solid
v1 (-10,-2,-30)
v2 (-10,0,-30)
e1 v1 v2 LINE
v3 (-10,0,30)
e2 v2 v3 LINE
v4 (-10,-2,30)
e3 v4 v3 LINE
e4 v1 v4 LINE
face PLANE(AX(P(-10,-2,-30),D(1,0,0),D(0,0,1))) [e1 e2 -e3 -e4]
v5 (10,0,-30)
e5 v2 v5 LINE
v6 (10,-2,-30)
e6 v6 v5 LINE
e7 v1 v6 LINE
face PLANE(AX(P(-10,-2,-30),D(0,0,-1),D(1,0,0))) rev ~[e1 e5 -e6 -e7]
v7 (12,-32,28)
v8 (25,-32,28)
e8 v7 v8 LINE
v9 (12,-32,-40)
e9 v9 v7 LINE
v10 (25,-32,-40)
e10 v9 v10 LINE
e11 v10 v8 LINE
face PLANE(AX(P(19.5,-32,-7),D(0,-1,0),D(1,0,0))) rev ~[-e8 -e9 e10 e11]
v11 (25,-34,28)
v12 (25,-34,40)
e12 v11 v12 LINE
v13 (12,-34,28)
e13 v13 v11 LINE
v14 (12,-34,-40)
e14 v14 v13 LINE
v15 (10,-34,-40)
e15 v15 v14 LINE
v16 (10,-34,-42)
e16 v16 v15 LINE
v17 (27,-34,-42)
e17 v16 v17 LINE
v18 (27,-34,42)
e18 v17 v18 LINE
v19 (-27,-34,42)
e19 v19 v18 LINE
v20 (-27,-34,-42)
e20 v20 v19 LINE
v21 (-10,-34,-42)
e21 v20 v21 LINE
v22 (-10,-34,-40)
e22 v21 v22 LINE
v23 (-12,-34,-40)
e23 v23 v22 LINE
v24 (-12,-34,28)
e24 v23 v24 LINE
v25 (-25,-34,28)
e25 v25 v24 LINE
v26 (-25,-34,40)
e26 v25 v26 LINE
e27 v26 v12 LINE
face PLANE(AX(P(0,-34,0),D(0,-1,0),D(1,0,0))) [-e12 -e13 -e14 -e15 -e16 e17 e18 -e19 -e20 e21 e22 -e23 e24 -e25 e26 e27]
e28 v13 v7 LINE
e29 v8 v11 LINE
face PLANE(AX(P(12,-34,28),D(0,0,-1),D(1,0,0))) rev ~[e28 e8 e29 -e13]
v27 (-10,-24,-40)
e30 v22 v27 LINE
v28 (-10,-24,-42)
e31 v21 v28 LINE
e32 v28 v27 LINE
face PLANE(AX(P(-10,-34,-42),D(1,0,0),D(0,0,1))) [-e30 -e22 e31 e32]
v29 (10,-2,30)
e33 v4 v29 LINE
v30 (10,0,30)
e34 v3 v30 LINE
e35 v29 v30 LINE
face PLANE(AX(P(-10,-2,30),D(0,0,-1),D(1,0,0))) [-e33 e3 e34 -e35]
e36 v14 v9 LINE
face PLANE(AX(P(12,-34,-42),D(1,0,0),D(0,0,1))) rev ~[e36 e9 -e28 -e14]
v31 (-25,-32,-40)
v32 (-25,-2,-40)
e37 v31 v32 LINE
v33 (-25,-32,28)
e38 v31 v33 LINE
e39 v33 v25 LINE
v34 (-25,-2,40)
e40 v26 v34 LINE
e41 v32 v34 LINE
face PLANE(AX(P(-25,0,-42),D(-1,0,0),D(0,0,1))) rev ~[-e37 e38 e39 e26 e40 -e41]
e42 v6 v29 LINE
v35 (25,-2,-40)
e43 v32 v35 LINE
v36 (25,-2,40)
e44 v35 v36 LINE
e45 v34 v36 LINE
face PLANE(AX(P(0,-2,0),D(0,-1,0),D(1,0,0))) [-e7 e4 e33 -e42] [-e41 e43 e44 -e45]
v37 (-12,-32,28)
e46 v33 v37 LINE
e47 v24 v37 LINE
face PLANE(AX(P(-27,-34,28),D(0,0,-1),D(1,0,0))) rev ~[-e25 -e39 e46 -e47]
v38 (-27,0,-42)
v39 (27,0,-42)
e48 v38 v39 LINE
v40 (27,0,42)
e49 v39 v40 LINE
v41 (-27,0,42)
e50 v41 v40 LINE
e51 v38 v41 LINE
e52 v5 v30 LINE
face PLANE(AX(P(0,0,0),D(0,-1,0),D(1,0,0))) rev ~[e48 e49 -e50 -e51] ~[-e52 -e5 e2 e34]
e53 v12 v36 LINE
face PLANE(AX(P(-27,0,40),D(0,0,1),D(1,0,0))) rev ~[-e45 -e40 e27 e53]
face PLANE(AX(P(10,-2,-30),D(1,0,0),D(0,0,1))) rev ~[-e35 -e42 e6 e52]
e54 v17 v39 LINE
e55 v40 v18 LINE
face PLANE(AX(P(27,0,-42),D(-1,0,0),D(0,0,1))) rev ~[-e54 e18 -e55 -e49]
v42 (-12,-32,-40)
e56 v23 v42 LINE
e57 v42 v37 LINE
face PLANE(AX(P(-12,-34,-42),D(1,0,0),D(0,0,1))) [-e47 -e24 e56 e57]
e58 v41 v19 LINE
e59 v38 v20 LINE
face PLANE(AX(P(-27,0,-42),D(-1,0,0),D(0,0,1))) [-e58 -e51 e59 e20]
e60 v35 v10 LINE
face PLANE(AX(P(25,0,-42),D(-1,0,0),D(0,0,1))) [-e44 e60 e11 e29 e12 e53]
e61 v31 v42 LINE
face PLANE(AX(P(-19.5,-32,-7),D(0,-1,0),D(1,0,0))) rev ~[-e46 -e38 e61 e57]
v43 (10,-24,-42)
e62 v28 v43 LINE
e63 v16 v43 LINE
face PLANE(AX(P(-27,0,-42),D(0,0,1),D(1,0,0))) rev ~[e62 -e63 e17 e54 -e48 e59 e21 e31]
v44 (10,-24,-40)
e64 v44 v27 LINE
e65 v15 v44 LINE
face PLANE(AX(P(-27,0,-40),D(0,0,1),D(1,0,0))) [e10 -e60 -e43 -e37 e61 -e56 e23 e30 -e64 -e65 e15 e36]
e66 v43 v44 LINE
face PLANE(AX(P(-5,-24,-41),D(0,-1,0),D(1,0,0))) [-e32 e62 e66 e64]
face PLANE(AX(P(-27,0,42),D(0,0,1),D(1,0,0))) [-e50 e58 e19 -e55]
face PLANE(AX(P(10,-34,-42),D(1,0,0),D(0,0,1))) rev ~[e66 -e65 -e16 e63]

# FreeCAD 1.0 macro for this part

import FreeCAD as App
import Part
import Sketcher
from FreeCAD import Vector


def faces_at(feature, points):
    """Names of the faces that lie closest to the given points."""
    faces = feature.Shape.Faces
    near = lambda p: min(range(len(faces)), key=lambda i: faces[i].distToShape(Part.Vertex(*p))[0])
    return sorted({f"Face{near(p) + 1}" for p in points})


def add_polygon(sketch, points):
    """Adds a closed chain of lines whose ends are joined by coincident constraints."""
    first, n = sketch.GeometryCount, len(points)
    for a, b in zip(points, points[1:] + points[:1]):
        sketch.addGeometry(Part.LineSegment(App.Vector(*a, 0), App.Vector(*b, 0)), False)
    for i in range(n):
        sketch.addConstraint(Sketcher.Constraint("Coincident", first + i, 2, first + (i + 1) % n, 1))

doc = App.newDocument("Part")
body = doc.addObject("PartDesign::Body", "Body")

sketch1 = body.newObject("Sketcher::SketchObject", "Sketch")
sketch1.AttachmentSupport = (doc.getObject("XZ_Plane"), [""])
sketch1.MapMode = "FlatFace"
add_polygon(sketch1, [(-27, 42), (-27, -42), (27, -42), (27, 42)])
sketch1.addConstraint(Sketcher.Constraint("Vertical", 0))
sketch1.addConstraint(Sketcher.Constraint("Horizontal", 1))
sketch1.addConstraint(Sketcher.Constraint("Vertical", 2))
sketch1.addConstraint(Sketcher.Constraint("Horizontal", 3))
sketch1.addConstraint(Sketcher.Constraint("Symmetric", 0, 2, 2, 2, -1, 1))
sketch1.addConstraint(Sketcher.Constraint("DistanceX", 1, 1, 1, 2, 54.0))
sketch1.addConstraint(Sketcher.Constraint("DistanceY", 0, 2, 0, 1, 84.0))
pad1 = body.newObject("PartDesign::Pad", "Pad")
pad1.Profile = sketch1
pad1.Length = 34
doc.recompute()

thickness = body.newObject("PartDesign::Thickness", "Thickness")
thickness.Base = (pad1, faces_at(pad1, [(0, -34, 0)]))
thickness.Value = 2
thickness.Reversed = True
thickness.Join = "Arc"

sketch2 = body.newObject("Sketcher::SketchObject", "Sketch001")
sketch2.AttachmentSupport = (doc.getObject("XZ_Plane"), [""])
sketch2.MapMode = "FlatFace"
sketch2.AttachmentOffset = App.Placement(Vector(0, 0, 2), App.Rotation())
add_polygon(sketch2, [(-10, 30), (-10, -30), (10, -30), (10, 30)])
sketch2.addConstraint(Sketcher.Constraint("Vertical", 0))
sketch2.addConstraint(Sketcher.Constraint("Horizontal", 1))
sketch2.addConstraint(Sketcher.Constraint("Vertical", 2))
sketch2.addConstraint(Sketcher.Constraint("Horizontal", 3))
sketch2.addConstraint(Sketcher.Constraint("Symmetric", 0, 2, 2, 2, -1, 1))
sketch2.addConstraint(Sketcher.Constraint("DistanceX", 1, 1, 1, 2, 20.0))
sketch2.addConstraint(Sketcher.Constraint("DistanceY", 0, 2, 0, 1, 60.0))
pocket1 = body.newObject("PartDesign::Pocket", "Pocket")
pocket1.Profile = sketch2
pocket1.Length = 25

sketch3 = body.newObject("Sketcher::SketchObject", "Sketch002")
sketch3.AttachmentSupport = (doc.getObject("XZ_Plane"), [""])
sketch3.MapMode = "FlatFace"
sketch3.AttachmentOffset = App.Placement(Vector(0, 0, 34), App.Rotation())
add_polygon(sketch3, [(-27, 28), (-27, -42), (-12, -42), (-12, 28)])
sketch3.addConstraint(Sketcher.Constraint("Vertical", 0))
sketch3.addConstraint(Sketcher.Constraint("Horizontal", 1))
sketch3.addConstraint(Sketcher.Constraint("Vertical", 2))
sketch3.addConstraint(Sketcher.Constraint("Horizontal", 3))
sketch3.addConstraint(Sketcher.Constraint("DistanceX", 1, 1, 1, 2, 15.0))
sketch3.addConstraint(Sketcher.Constraint("DistanceY", 0, 2, 0, 1, 70.0))
sketch3.addConstraint(Sketcher.Constraint("DistanceX", 0, 2, -1, 1, 27.0))
sketch3.addConstraint(Sketcher.Constraint("DistanceY", 0, 2, -1, 1, 42.0))
pad2 = body.newObject("PartDesign::Pad", "Pad001")
pad2.Profile = sketch3
pad2.Length = 2
pad2.Reversed = True

sketch4 = body.newObject("Sketcher::SketchObject", "Sketch003")
sketch4.AttachmentSupport = (doc.getObject("XZ_Plane"), [""])
sketch4.MapMode = "FlatFace"
sketch4.AttachmentOffset = App.Placement(Vector(0, 0, 34), App.Rotation())
add_polygon(sketch4, [(12, 28), (12, -42), (27, -42), (27, 28)])
sketch4.addConstraint(Sketcher.Constraint("Vertical", 0))
sketch4.addConstraint(Sketcher.Constraint("Horizontal", 1))
sketch4.addConstraint(Sketcher.Constraint("Vertical", 2))
sketch4.addConstraint(Sketcher.Constraint("Horizontal", 3))
sketch4.addConstraint(Sketcher.Constraint("DistanceX", 1, 1, 1, 2, 15.0))
sketch4.addConstraint(Sketcher.Constraint("DistanceY", 0, 2, 0, 1, 70.0))
sketch4.addConstraint(Sketcher.Constraint("DistanceX", -1, 1, 0, 2, 12.0))
sketch4.addConstraint(Sketcher.Constraint("DistanceY", 0, 2, -1, 1, 42.0))
pad3 = body.newObject("PartDesign::Pad", "Pad002")
pad3.Profile = sketch4
pad3.Length = 2
pad3.Reversed = True

sketch5 = body.newObject("Sketcher::SketchObject", "Sketch004")
sketch5.AttachmentSupport = (doc.getObject("XZ_Plane"), [""])
sketch5.MapMode = "FlatFace"
sketch5.AttachmentOffset = App.Placement(Vector(0, 0, 34), App.Rotation())
add_polygon(sketch5, [(-10, -40), (-10, -42), (10, -42), (10, -40)])
sketch5.addConstraint(Sketcher.Constraint("Vertical", 0))
sketch5.addConstraint(Sketcher.Constraint("Horizontal", 1))
sketch5.addConstraint(Sketcher.Constraint("Vertical", 2))
sketch5.addConstraint(Sketcher.Constraint("Horizontal", 3))
sketch5.addConstraint(Sketcher.Constraint("DistanceX", 1, 1, 1, 2, 20.0))
sketch5.addConstraint(Sketcher.Constraint("DistanceY", 0, 2, 0, 1, 2.0))
sketch5.addConstraint(Sketcher.Constraint("DistanceX", 0, 2, -1, 1, 10.0))
sketch5.addConstraint(Sketcher.Constraint("DistanceY", 0, 2, -1, 1, 42.0))
pocket2 = body.newObject("PartDesign::Pocket", "Pocket001")
pocket2.Profile = sketch5
pocket2.Length = 10

doc.recompute()
